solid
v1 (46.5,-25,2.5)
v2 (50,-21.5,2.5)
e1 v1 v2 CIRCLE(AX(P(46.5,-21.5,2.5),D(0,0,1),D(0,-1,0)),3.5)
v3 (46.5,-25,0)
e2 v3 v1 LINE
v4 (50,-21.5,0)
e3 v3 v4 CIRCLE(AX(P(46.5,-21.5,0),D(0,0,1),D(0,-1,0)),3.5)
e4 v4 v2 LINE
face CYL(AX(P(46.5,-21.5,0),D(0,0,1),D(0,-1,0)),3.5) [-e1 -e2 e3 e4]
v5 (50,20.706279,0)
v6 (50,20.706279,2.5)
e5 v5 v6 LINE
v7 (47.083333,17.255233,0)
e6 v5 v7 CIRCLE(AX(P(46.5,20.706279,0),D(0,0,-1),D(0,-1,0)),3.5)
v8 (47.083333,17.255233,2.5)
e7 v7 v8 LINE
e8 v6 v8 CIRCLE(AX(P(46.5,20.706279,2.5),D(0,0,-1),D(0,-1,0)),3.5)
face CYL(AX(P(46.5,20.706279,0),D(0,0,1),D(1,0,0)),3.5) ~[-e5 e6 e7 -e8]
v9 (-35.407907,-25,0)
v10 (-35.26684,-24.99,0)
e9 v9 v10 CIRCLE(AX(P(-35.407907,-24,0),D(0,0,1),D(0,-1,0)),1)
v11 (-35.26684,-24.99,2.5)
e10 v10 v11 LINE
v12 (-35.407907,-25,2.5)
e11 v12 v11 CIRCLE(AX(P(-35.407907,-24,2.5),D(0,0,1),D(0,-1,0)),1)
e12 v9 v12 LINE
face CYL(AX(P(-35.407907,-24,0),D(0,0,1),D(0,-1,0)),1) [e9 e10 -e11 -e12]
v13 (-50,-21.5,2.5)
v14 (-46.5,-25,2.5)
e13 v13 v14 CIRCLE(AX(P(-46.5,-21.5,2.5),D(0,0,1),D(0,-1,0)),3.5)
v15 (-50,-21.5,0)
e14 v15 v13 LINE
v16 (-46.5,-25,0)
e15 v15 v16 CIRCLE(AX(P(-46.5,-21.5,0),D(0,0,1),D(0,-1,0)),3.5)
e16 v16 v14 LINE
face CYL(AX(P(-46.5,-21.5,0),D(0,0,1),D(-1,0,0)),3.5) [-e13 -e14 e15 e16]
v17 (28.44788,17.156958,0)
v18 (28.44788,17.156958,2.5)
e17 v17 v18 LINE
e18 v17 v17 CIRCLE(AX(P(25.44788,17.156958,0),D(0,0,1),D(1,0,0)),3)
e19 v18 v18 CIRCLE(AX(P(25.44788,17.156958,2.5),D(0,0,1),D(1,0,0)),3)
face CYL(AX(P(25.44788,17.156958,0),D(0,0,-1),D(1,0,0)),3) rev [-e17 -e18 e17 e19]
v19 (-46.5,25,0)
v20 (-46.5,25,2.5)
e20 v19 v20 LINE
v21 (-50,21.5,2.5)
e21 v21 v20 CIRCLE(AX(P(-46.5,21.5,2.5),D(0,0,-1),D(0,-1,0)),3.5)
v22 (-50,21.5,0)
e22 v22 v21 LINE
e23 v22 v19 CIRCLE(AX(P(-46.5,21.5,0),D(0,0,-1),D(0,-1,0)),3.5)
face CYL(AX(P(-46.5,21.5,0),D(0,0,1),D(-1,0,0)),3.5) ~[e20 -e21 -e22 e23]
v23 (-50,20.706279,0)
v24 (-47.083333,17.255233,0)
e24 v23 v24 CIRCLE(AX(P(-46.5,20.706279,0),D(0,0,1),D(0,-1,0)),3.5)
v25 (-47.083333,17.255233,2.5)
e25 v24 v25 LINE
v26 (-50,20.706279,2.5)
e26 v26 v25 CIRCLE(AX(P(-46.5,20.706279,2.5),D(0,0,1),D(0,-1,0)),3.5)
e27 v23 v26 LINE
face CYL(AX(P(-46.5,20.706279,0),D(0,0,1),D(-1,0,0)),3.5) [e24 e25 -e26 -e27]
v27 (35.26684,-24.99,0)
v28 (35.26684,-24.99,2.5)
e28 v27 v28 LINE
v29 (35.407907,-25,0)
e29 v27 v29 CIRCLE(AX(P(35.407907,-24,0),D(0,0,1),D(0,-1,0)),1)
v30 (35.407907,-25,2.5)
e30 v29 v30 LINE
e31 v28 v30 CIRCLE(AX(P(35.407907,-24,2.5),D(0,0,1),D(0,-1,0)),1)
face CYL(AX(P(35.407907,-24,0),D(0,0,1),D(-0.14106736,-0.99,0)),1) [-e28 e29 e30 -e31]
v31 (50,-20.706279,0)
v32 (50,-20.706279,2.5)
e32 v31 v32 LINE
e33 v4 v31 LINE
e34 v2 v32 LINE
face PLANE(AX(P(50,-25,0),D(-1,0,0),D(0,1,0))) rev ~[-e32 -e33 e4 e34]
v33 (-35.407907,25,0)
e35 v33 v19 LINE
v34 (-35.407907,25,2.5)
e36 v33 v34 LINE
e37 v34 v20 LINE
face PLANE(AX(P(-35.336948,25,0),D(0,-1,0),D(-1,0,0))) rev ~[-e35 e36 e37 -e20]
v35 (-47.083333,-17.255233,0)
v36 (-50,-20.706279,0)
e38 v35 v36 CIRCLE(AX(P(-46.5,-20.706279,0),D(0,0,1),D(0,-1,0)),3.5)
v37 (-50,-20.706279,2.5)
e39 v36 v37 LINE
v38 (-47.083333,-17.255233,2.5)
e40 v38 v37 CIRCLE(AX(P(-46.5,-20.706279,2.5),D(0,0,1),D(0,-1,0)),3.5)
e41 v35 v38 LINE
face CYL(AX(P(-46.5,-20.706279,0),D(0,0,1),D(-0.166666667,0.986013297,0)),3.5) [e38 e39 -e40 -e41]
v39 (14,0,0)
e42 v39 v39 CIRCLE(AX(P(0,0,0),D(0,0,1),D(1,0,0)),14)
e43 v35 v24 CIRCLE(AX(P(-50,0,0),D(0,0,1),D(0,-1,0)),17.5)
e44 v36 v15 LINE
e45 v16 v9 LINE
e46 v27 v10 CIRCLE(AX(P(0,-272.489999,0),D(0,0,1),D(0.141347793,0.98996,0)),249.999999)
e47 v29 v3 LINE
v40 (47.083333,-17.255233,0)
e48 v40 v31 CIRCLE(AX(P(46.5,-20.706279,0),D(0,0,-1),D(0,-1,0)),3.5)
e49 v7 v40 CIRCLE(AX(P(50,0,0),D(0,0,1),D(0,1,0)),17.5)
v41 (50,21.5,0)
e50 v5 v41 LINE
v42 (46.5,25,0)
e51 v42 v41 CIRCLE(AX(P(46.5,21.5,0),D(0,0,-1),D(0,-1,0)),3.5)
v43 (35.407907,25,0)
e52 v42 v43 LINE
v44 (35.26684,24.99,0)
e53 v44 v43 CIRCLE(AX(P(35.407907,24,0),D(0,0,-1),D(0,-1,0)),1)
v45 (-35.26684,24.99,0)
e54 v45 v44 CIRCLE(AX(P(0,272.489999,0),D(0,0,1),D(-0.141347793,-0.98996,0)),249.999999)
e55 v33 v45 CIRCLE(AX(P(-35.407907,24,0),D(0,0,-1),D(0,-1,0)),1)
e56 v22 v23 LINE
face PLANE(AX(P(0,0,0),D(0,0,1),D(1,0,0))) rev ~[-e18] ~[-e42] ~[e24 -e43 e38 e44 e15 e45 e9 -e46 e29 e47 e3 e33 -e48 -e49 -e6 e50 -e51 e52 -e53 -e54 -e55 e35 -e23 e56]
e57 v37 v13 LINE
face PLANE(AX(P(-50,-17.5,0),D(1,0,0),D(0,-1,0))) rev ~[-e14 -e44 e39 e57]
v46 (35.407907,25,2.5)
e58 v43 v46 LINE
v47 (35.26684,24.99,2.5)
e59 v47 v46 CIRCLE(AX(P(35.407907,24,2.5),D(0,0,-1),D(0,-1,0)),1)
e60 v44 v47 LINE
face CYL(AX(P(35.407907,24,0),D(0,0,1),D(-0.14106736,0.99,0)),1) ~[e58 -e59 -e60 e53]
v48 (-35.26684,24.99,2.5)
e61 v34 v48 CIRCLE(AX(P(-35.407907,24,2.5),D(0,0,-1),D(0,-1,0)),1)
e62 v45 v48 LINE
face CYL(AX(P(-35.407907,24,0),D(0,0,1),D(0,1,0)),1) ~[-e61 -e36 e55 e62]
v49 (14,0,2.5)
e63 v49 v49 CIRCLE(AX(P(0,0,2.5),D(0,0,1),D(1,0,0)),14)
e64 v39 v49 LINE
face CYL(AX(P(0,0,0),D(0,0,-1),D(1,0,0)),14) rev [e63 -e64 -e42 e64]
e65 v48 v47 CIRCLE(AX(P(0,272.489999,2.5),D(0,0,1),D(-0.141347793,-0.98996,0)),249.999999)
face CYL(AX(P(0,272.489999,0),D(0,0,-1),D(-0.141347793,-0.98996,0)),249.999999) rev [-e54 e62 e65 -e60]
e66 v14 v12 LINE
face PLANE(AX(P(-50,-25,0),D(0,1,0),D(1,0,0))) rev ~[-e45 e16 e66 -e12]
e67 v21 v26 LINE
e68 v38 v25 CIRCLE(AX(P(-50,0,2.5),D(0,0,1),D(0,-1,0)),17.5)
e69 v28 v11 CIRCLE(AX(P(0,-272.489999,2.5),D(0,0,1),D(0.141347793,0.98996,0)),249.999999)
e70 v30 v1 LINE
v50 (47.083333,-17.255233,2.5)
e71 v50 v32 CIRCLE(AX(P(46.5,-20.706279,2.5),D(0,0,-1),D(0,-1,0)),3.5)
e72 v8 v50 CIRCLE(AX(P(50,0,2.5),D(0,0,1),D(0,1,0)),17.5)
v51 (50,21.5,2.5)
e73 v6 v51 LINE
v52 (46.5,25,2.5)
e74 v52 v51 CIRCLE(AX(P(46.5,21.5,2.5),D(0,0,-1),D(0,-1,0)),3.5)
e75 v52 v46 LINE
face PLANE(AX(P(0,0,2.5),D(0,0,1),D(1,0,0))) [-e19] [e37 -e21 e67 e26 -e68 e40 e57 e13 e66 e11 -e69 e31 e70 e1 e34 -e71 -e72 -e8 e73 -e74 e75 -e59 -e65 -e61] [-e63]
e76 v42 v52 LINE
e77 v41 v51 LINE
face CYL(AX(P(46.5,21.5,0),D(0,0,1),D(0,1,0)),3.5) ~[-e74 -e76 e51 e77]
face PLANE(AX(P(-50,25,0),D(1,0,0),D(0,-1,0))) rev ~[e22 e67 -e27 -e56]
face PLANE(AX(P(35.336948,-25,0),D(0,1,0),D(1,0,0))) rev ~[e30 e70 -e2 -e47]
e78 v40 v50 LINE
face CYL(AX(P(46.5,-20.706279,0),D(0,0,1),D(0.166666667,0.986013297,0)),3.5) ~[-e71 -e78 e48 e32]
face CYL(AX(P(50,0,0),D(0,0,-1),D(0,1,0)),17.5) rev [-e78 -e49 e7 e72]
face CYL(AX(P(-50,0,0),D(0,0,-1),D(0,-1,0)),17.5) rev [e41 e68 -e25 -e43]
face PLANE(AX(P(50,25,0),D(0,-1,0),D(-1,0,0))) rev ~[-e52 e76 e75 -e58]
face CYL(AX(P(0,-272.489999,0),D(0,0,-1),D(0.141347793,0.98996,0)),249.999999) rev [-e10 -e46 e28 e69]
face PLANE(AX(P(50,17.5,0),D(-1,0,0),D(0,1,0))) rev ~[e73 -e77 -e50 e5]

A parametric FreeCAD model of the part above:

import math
import FreeCAD as App
import Part
import Sketcher

V = App.Vector


def edges_at(feature, points):
    """Names of the edges that pass closest to the given points."""
    edges = feature.Shape.Edges
    near = lambda p: min(range(len(edges)), key=lambda i: edges[i].distToShape(Part.Vertex(*p))[0])
    return sorted({f"Edge{near(p) + 1}" for p in points})

doc = App.newDocument("Part")
params = doc.addObject("Spreadsheet::Sheet", "Params")
for row, (alias, value) in enumerate([
    ("sketch1_diameter", "28 mm"),
    ("sketch1_diameter2", "6 mm"),
    ("sketch1_radius", "249.999999 mm"),
    ("sketch1_radius2", "17.5 mm"),
    ("sketch1_height", "7.5 mm"),
    ("pad1_length", "2.5 mm"),
    ("fillet_radius", "3.5 mm"),
    ("fillet2_radius", "1 mm"),
], start=1):
    params.set(f"A{row}", alias)
    params.set(f"B{row}", "=" + value)
    params.setAlias(f"B{row}", alias)

body = doc.addObject("PartDesign::Body", "Body")

# Sketch on XY plane
sketch1 = body.newObject("Sketcher::SketchObject", "Sketch")
sketch1.AttachmentSupport = (doc.getObject("XY_Plane"), [""])
sketch1.MapMode = "FlatFace"
sketch1.addGeometry(Part.LineSegment(V(-50, 25, 0), V(-50, 17.5, 0)), False)
sketch1.addGeometry(Part.ArcOfCircle(Part.Circle(V(-50, 0, 0), V(0, 0, 1), 17.5), math.radians(-90), math.radians(90)), False)
sketch1.addGeometry(Part.LineSegment(V(-50, -17.5, 0), V(-50, -25, 0)), False)
sketch1.addGeometry(Part.LineSegment(V(-50, -25, 0), V(-35.3, -25, 0)), False)
sketch1.addGeometry(Part.ArcOfCircle(Part.Circle(V(0, -272.5, 0), V(0, 0, 1), 250), math.radians(81.87), math.radians(98.13)), False)
sketch1.addGeometry(Part.LineSegment(V(35.3, -25, 0), V(50, -25, 0)), False)
sketch1.addGeometry(Part.LineSegment(V(50, -25, 0), V(50, -17.5, 0)), False)
sketch1.addGeometry(Part.ArcOfCircle(Part.Circle(V(50, 0, 0), V(0, 0, 1), 17.5), math.radians(90), math.radians(270)), False)
sketch1.addGeometry(Part.LineSegment(V(50, 17.5, 0), V(50, 25, 0)), False)
sketch1.addGeometry(Part.LineSegment(V(50, 25, 0), V(35.3, 25, 0)), False)
sketch1.addGeometry(Part.ArcOfCircle(Part.Circle(V(0, 272.5, 0), V(0, 0, 1), 250), math.radians(-98.13), math.radians(-81.87)), False)
sketch1.addGeometry(Part.LineSegment(V(-35.3, 25, 0), V(-50, 25, 0)), False)
sketch1.addGeometry(Part.Circle(V(0, 0, 0), V(0, 0, 1), 14), False)
sketch1.addGeometry(Part.Circle(V(25.4, 17.2, 0), V(0, 0, 1), 3), False)
sketch1.addConstraint(Sketcher.Constraint("Coincident", 0, 2, 1, 2))
sketch1.addConstraint(Sketcher.Constraint("Coincident", 1, 1, 2, 1))
sketch1.addConstraint(Sketcher.Constraint("Coincident", 2, 2, 3, 1))
sketch1.addConstraint(Sketcher.Constraint("Coincident", 3, 2, 4, 2))
sketch1.addConstraint(Sketcher.Constraint("Coincident", 4, 1, 5, 1))
sketch1.addConstraint(Sketcher.Constraint("Coincident", 5, 2, 6, 1))
sketch1.addConstraint(Sketcher.Constraint("Coincident", 6, 2, 7, 2))
sketch1.addConstraint(Sketcher.Constraint("Coincident", 7, 1, 8, 1))
sketch1.addConstraint(Sketcher.Constraint("Coincident", 8, 2, 9, 1))
sketch1.addConstraint(Sketcher.Constraint("Coincident", 9, 2, 10, 2))
sketch1.addConstraint(Sketcher.Constraint("Coincident", 10, 1, 11, 1))
sketch1.addConstraint(Sketcher.Constraint("Coincident", 11, 2, 0, 1))
sketch1.addConstraint(Sketcher.Constraint("Vertical", 0))
sketch1.addConstraint(Sketcher.Constraint("Vertical", 2))
sketch1.addConstraint(Sketcher.Constraint("Horizontal", 3))
sketch1.addConstraint(Sketcher.Constraint("Horizontal", 5))
sketch1.addConstraint(Sketcher.Constraint("Vertical", 6))
sketch1.addConstraint(Sketcher.Constraint("Vertical", 8))
sketch1.addConstraint(Sketcher.Constraint("Horizontal", 9))
sketch1.addConstraint(Sketcher.Constraint("Horizontal", 11))
sketch1.addConstraint(Sketcher.Constraint("Coincident", 12, 3, -1, 1))
sketch1.addConstraint(Sketcher.Constraint("Equal", 1, 7))
sketch1.addConstraint(Sketcher.Constraint("Equal", 4, 10))
sketch1.addConstraint(Sketcher.Constraint("Symmetric", 1, 3, 7, 3, -1, 1))
sketch1.addConstraint(Sketcher.Constraint("Symmetric", 4, 3, 10, 3, -1, 1))
sketch1.addConstraint(Sketcher.Constraint("Symmetric", 2, 2, 8, 2, -1, 1))
sketch1.addConstraint(Sketcher.Constraint("Symmetric", 5, 2, 11, 2, -1, 1))
sketch1.addConstraint(Sketcher.Constraint("Symmetric", 3, 2, 4, 1, -2))
sketch1.addConstraint(Sketcher.Constraint("Symmetric", 1, 1, 6, 2, -2))
sketch1.addConstraint(Sketcher.Constraint("Vertical", 1, 3, 0, 2))
sketch1.addConstraint(Sketcher.Constraint("Diameter", 12, 28.0))
sketch1.addConstraint(Sketcher.Constraint("Diameter", 13, 6.0))
sketch1.addConstraint(Sketcher.Constraint("Radius", 4, 249.999999))
sketch1.addConstraint(Sketcher.Constraint("Radius", 1, 17.5))
sketch1.addConstraint(Sketcher.Constraint("DistanceY", 0, 2, 0, 1, 7.5))
sketch1.addConstraint(Sketcher.Constraint("DistanceX", 1, 3, -1, 1, 50.0))
sketch1.addConstraint(Sketcher.Constraint("DistanceY", 4, 3, -1, 1, 272.489999))
sketch1.addConstraint(Sketcher.Constraint("DistanceX", -1, 1, 13, 3, 25.44788))
sketch1.addConstraint(Sketcher.Constraint("DistanceY", 13, 3, 10, 3, 255.333041))
sketch1.setExpression("Constraints[30]", "Params.sketch1_diameter")
sketch1.setExpression("Constraints[31]", "Params.sketch1_diameter2")
sketch1.setExpression("Constraints[32]", "Params.sketch1_radius")
sketch1.setExpression("Constraints[33]", "Params.sketch1_radius2")
sketch1.setExpression("Constraints[34]", "Params.sketch1_height")
pad1 = body.newObject("PartDesign::Pad", "Pad")
pad1.Profile = sketch1
pad1.setExpression("Length", "Params.pad1_length")
doc.recompute()

fillet = body.newObject("PartDesign::Fillet", "Fillet")
fillet.Base = (pad1, edges_at(pad1, [
    (-50, -25, 1.25),
    (50, -25, 1.25),
    (50, -17.5, 1.25),
    (50, 25, 1.25),
    (50, 17.5, 1.25),
    (-50, 17.5, 1.25),
    (-50, 25, 1.25),
    (-50, -17.5, 1.25),
]))
fillet.setExpression("Radius", "Params.fillet_radius")
doc.recompute()

fillet2 = body.newObject("PartDesign::Fillet", "Fillet001")
fillet2.Base = (fillet, edges_at(fillet, [
    (35.337, 25, 1.25),
    (-35.337, 25, 1.25),
    (-35.337, -25, 1.25),
    (35.337, -25, 1.25),
]))
fillet2.setExpression("Radius", "Params.fillet2_radius")

doc.recompute()
